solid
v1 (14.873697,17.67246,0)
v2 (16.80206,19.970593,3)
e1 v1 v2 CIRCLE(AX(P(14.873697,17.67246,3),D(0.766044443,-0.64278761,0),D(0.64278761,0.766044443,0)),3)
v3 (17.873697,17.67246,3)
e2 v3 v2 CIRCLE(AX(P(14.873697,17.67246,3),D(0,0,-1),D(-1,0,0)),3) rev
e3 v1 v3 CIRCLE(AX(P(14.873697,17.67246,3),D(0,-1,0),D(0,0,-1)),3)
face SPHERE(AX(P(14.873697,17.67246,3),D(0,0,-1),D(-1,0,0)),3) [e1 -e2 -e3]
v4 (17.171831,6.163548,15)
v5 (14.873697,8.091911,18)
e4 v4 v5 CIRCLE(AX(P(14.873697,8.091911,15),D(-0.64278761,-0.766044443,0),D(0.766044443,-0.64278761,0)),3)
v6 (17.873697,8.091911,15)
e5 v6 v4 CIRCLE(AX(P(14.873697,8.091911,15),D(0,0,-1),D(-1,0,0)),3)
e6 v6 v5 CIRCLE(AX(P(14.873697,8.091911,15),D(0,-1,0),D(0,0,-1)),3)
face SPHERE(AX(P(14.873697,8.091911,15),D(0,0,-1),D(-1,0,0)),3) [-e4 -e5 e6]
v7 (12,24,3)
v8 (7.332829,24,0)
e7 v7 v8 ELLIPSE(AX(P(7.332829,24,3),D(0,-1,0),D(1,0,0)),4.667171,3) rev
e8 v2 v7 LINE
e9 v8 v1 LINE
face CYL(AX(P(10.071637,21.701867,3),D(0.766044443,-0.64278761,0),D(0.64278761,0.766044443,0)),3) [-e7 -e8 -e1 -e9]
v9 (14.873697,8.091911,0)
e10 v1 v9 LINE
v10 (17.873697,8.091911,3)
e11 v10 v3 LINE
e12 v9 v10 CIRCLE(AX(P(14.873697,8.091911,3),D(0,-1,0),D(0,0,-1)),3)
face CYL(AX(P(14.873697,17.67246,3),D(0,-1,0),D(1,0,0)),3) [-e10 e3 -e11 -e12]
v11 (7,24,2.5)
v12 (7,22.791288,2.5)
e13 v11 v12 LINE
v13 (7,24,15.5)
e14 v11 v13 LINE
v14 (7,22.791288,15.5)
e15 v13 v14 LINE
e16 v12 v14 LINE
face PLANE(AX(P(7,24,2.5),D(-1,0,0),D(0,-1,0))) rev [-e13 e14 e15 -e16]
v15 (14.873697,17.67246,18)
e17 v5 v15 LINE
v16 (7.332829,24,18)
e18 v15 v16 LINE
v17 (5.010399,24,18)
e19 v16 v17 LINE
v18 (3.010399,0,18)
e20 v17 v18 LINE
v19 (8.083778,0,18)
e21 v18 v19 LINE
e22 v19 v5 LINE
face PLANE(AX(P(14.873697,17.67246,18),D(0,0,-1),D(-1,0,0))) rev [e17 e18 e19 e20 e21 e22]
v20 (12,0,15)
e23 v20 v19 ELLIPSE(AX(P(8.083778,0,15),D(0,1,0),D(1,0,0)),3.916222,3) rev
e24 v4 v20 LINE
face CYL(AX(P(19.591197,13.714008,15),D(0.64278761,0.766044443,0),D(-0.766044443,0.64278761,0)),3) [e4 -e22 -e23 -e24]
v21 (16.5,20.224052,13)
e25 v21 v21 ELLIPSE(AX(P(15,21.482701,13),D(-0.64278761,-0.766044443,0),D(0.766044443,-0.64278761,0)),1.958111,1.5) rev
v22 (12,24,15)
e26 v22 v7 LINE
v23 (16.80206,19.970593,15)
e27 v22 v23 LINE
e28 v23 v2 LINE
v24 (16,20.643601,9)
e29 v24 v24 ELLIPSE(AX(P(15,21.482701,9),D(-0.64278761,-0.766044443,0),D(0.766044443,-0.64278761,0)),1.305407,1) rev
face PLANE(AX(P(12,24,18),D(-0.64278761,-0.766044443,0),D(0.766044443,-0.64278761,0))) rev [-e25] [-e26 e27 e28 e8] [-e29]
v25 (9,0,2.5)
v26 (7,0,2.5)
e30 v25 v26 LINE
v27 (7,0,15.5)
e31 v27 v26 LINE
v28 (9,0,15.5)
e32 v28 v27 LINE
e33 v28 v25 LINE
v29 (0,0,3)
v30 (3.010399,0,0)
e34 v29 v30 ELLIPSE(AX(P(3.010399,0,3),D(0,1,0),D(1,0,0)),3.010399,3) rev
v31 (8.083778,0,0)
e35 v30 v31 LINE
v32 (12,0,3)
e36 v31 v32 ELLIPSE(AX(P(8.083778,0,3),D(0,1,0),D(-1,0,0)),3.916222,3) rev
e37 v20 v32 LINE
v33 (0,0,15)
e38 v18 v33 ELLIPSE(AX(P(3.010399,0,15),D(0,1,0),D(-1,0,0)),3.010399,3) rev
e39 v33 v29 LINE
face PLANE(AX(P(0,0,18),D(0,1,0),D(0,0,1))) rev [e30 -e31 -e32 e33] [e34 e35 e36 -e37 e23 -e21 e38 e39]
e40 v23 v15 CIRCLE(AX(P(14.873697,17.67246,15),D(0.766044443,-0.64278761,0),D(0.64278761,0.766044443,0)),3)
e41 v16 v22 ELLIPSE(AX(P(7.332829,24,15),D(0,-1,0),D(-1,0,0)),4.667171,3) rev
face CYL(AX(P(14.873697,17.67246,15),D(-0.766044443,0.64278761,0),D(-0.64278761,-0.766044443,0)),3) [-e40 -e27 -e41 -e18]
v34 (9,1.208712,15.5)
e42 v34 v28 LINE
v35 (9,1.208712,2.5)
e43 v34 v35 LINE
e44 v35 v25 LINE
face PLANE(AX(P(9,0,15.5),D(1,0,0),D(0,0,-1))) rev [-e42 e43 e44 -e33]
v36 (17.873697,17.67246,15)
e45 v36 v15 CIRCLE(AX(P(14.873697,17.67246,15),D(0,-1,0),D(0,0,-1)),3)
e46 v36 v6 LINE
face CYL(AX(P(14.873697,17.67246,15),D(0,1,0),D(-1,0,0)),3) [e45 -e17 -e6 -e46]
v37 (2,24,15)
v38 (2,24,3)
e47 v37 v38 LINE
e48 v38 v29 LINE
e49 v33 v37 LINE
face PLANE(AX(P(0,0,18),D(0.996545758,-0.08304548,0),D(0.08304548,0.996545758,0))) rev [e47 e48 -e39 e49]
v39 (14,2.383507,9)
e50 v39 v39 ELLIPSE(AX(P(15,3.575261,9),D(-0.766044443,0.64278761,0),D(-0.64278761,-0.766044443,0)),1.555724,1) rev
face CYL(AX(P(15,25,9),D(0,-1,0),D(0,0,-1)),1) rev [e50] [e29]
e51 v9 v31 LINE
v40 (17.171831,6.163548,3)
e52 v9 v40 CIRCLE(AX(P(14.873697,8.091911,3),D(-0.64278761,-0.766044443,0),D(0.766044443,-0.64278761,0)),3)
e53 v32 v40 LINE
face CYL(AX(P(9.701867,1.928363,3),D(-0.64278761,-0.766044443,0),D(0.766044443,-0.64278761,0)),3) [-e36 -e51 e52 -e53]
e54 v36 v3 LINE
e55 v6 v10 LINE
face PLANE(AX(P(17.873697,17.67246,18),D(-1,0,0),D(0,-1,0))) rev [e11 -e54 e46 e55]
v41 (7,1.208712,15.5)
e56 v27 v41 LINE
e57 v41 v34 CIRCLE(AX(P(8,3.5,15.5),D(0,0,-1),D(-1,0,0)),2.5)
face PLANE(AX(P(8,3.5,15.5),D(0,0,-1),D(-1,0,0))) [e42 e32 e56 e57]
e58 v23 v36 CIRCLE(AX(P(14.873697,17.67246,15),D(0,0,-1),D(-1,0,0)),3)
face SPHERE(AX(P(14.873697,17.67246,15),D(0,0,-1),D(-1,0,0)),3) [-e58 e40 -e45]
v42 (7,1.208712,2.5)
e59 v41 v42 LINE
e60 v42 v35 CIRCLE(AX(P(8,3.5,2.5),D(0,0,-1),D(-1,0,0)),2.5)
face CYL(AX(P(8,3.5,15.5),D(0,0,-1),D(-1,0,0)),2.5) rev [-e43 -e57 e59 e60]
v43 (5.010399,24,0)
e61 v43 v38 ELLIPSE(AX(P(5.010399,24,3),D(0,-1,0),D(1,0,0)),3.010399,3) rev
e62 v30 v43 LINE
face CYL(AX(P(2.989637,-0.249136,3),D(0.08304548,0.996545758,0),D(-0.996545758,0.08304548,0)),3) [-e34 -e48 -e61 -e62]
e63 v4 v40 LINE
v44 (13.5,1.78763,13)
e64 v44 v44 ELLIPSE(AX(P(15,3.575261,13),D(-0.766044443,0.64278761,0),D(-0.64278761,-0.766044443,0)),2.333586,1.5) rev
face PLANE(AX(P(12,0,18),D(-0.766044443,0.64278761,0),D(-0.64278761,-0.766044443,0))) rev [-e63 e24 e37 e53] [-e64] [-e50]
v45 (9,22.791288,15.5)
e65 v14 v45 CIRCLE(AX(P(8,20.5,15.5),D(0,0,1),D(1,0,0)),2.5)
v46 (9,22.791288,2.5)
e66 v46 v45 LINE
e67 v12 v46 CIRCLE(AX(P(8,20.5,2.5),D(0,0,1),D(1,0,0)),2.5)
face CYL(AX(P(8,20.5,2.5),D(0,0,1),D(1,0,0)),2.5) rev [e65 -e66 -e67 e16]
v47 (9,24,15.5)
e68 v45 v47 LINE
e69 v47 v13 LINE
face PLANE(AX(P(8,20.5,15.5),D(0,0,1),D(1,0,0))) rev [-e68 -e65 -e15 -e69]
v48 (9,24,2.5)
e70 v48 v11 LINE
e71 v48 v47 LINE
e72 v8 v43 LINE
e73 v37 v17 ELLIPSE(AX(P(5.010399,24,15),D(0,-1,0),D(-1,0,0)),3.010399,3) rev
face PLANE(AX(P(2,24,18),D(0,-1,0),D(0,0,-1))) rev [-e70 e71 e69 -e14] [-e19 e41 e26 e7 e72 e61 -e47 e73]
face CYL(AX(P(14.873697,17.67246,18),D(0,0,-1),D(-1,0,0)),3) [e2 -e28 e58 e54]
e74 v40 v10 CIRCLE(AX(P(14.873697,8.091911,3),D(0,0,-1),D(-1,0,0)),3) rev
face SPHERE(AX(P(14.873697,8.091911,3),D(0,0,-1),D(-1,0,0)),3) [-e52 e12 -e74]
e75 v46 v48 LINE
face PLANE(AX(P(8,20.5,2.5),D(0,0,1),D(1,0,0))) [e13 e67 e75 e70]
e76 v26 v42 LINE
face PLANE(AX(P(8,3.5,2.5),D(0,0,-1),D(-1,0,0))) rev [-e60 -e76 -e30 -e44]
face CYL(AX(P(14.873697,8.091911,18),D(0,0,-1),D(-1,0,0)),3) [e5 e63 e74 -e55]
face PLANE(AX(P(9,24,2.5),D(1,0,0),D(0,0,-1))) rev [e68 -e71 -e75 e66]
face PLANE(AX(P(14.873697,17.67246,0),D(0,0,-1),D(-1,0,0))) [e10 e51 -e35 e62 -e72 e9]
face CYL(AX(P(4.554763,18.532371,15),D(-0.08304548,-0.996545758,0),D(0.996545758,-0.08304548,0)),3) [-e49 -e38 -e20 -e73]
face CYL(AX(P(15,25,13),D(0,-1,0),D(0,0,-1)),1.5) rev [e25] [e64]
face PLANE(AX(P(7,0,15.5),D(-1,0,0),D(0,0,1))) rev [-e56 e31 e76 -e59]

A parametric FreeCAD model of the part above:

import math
import FreeCAD as App
import Part
import Sketcher
from FreeCAD import Vector
Q = App.Units.Quantity


def edges_at(feature, points):
    """Names of the edges that pass closest to the given points."""
    edges = feature.Shape.Edges
    near = lambda p: min(range(len(edges)), key=lambda i: edges[i].distToShape(Part.Vertex(*p))[0])
    return sorted({f"Edge{near(p) + 1}" for p in points})

doc = App.newDocument("Part")
body = doc.addObject("PartDesign::Body", "Body")

# Sketch on XY plane
sketch1 = body.newObject("Sketcher::SketchObject", "Sketch")
sketch1.AttachmentSupport = (doc.getObject("XY_Plane"), [""])
sketch1.MapMode = "FlatFace"
sketch1.addGeometry([
    Part.LineSegment(Vector(0, 0, 0), Vector(12, 0, 0)),  # 0
    Part.LineSegment(Vector(12, 0, 0), Vector(17.171831, 6.163548, 0)),  # 1
    Part.ArcOfCircle(Part.Circle(Vector(14.873697, 8.091911, 0), Vector(0, 0, 1), 3), math.radians(-40), math.radians(0)),  # 2
    Part.LineSegment(Vector(17.873697, 8.091911, 0), Vector(17.873697, 17.67246, 0)),  # 3
    Part.ArcOfCircle(Part.Circle(Vector(14.873697, 17.67246, 0), Vector(0, 0, 1), 3), math.radians(0), math.radians(50)),  # 4
    Part.LineSegment(Vector(16.80206, 19.970593, 0), Vector(12, 24, 0)),  # 5
    Part.LineSegment(Vector(12, 24, 0), Vector(2, 24, 0)),  # 6
    Part.LineSegment(Vector(2, 24, 0), Vector(0, 0, 0)),  # 7
], False)
sketch1.addConstraint([
    Sketcher.Constraint("Coincident", 0, 2, 1, 1),
    Sketcher.Constraint("Tangent", 1, 2, 2, 1),
    Sketcher.Constraint("Tangent", 2, 2, 3, 1),
    Sketcher.Constraint("Tangent", 3, 2, 4, 1),
    Sketcher.Constraint("Tangent", 4, 2, 5, 1),
    Sketcher.Constraint("Coincident", 5, 2, 6, 1),
    Sketcher.Constraint("Coincident", 6, 2, 7, 1),
    Sketcher.Constraint("Coincident", 7, 2, 0, 1),
    Sketcher.Constraint("Horizontal", 0),
    Sketcher.Constraint("Vertical", 3),
    Sketcher.Constraint("Horizontal", 6),
    Sketcher.Constraint("Coincident", 7, 2, -1, 1),
    Sketcher.Constraint("Equal", 2, 4),
    Sketcher.Constraint("Perpendicular", 1, 5),
    Sketcher.Constraint("Vertical", 0, 2, 5, 2),
    Sketcher.Constraint("Radius", 2, Q("3 mm")),
    Sketcher.Constraint("DistanceX", 0, 1, 0, 2, Q("12 mm")),
    Sketcher.Constraint("DistanceX", 6, 2, 6, 1, Q("10 mm")),
    Sketcher.Constraint("Angle", 1, Q("50 deg")),
    Sketcher.Constraint("DistanceY", -1, 1, 5, 2, Q("24 mm")),
    Sketcher.Constraint("DistanceY", 3, 1, 3, 2, Q("9.580549 mm")),
])
pad1 = body.newObject("PartDesign::Pad", "Pad")
pad1.Profile = sketch1
pad1.Length = 18

# Sketch on XY plane
sketch2 = body.newObject("Sketcher::SketchObject", "Sketch001")
sketch2.AttachmentSupport = (doc.getObject("XY_Plane"), [""])
sketch2.MapMode = "FlatFace"
sketch2.AttachmentOffset = App.Placement(Vector(0, 0, 15.5), App.Rotation())
sketch2.addGeometry([
    Part.LineSegment(Vector(9, 24, 0), Vector(7, 24, 0)),
    Part.LineSegment(Vector(7, 24, 0), Vector(7, 22.791288, 0)),
    Part.ArcOfCircle(Part.Circle(Vector(8, 20.5, 0), Vector(0, 0, 1), 2.5), math.radians(113.578178), math.radians(426.421822)),
    Part.LineSegment(Vector(9, 22.791288, 0), Vector(9, 24, 0)),
], False)
sketch2.addConstraint([
    Sketcher.Constraint("Coincident", 0, 2, 1, 1),
    Sketcher.Constraint("Coincident", 1, 2, 2, 1),
    Sketcher.Constraint("Coincident", 2, 2, 3, 1),
    Sketcher.Constraint("Coincident", 3, 2, 0, 1),
    Sketcher.Constraint("Horizontal", 0),
    Sketcher.Constraint("Vertical", 1),
    Sketcher.Constraint("Vertical", 3),
    Sketcher.Constraint("Horizontal", 1, 2, 2, 2),
    Sketcher.Constraint("Radius", 2, Q("2.5 mm")),
    Sketcher.Constraint("DistanceX", 0, 2, 0, 1, Q("2 mm")),
    Sketcher.Constraint("DistanceX", -1, 1, 2, 3, Q("8 mm")),
    Sketcher.Constraint("DistanceY", -1, 1, 0, 2, Q("24 mm")),
    Sketcher.Constraint("DistanceY", -1, 1, 2, 3, Q("20.5 mm")),
])
pocket1 = body.newObject("PartDesign::Pocket", "Pocket")
pocket1.Profile = sketch2
pocket1.Length = 13

# Sketch on XY plane
sketch3 = body.newObject("Sketcher::SketchObject", "Sketch002")
sketch3.AttachmentSupport = (doc.getObject("XY_Plane"), [""])
sketch3.MapMode = "FlatFace"
sketch3.AttachmentOffset = App.Placement(Vector(0, 0, 2.5), App.Rotation())
sketch3.addGeometry([
    Part.LineSegment(Vector(9, 0, 0), Vector(7, 0, 0)),
    Part.LineSegment(Vector(7, 0, 0), Vector(7, 1.208712, 0)),
    Part.ArcOfCircle(Part.Circle(Vector(8, 3.5, 0), Vector(0, 0, 1), 2.5), math.radians(-66.421822), math.radians(246.421822)),
    Part.LineSegment(Vector(9, 1.208712, 0), Vector(9, 0, 0)),
], False)
sketch3.addConstraint([
    Sketcher.Constraint("Coincident", 0, 2, 1, 1),
    Sketcher.Constraint("Coincident", 1, 2, 2, 2),
    Sketcher.Constraint("Coincident", 2, 1, 3, 1),
    Sketcher.Constraint("Coincident", 3, 2, 0, 1),
    Sketcher.Constraint("Horizontal", 0),
    Sketcher.Constraint("Vertical", 1),
    Sketcher.Constraint("Vertical", 3),
    Sketcher.Constraint("PointOnObject", 0, 2, -1),
    Sketcher.Constraint("Horizontal", 1, 2, 2, 1),
    Sketcher.Constraint("Radius", 2, Q("2.5 mm")),
    Sketcher.Constraint("DistanceX", 0, 2, 0, 1, Q("2 mm")),
    Sketcher.Constraint("DistanceX", -1, 1, 2, 3, Q("8 mm")),
    Sketcher.Constraint("DistanceY", -1, 1, 2, 3, Q("3.5 mm")),
])
pocket2 = body.newObject("PartDesign::Pocket", "Pocket001")
pocket2.Profile = sketch3
pocket2.Length = 13
pocket2.Reversed = True

# Sketch on XZ plane
sketch4 = body.newObject("Sketcher::SketchObject", "Sketch003")
sketch4.AttachmentSupport = (doc.getObject("XZ_Plane"), [""])
sketch4.MapMode = "FlatFace"
sketch4.addGeometry([
    Part.Circle(Vector(15, 9, 0), Vector(0, 0, 1), 1),
    Part.Circle(Vector(15, 13, 0), Vector(0, 0, 1), 1.5),
], False)
sketch4.addConstraint([
    Sketcher.Constraint("Vertical", 0, 3, 1, 3),
    Sketcher.Constraint("Diameter", 0, Q("2 mm")),
    Sketcher.Constraint("Diameter", 1, Q("3 mm")),
    Sketcher.Constraint("DistanceX", -1, 1, 0, 3, Q("15 mm")),
    Sketcher.Constraint("DistanceY", -1, 1, 0, 3, Q("9 mm")),
    Sketcher.Constraint("DistanceY", -1, 1, 1, 3, Q("13 mm")),
])
pocket3 = body.newObject("PartDesign::Pocket", "Pocket002")
pocket3.Profile = sketch4
pocket3.Length = 25
doc.recompute()

fillet = body.newObject("PartDesign::Fillet", "Fillet")
fillet.Base = (pocket3, edges_at(pocket3, [
    (17.693, 7.066, 0),
    (14.586, 3.082, 0),
    (1, 12, 0),
    (14.586, 3.082, 18),
    (17.693, 7.066, 18),
    (17.874, 12.882, 18),
    (17.593, 18.94, 18),
    (14.401, 21.985, 18),
    (1, 12, 18),
    (14.401, 21.985, 0),
    (17.593, 18.94, 0),
    (17.874, 12.882, 0),
]))
fillet.Radius = 3

doc.recompute()
